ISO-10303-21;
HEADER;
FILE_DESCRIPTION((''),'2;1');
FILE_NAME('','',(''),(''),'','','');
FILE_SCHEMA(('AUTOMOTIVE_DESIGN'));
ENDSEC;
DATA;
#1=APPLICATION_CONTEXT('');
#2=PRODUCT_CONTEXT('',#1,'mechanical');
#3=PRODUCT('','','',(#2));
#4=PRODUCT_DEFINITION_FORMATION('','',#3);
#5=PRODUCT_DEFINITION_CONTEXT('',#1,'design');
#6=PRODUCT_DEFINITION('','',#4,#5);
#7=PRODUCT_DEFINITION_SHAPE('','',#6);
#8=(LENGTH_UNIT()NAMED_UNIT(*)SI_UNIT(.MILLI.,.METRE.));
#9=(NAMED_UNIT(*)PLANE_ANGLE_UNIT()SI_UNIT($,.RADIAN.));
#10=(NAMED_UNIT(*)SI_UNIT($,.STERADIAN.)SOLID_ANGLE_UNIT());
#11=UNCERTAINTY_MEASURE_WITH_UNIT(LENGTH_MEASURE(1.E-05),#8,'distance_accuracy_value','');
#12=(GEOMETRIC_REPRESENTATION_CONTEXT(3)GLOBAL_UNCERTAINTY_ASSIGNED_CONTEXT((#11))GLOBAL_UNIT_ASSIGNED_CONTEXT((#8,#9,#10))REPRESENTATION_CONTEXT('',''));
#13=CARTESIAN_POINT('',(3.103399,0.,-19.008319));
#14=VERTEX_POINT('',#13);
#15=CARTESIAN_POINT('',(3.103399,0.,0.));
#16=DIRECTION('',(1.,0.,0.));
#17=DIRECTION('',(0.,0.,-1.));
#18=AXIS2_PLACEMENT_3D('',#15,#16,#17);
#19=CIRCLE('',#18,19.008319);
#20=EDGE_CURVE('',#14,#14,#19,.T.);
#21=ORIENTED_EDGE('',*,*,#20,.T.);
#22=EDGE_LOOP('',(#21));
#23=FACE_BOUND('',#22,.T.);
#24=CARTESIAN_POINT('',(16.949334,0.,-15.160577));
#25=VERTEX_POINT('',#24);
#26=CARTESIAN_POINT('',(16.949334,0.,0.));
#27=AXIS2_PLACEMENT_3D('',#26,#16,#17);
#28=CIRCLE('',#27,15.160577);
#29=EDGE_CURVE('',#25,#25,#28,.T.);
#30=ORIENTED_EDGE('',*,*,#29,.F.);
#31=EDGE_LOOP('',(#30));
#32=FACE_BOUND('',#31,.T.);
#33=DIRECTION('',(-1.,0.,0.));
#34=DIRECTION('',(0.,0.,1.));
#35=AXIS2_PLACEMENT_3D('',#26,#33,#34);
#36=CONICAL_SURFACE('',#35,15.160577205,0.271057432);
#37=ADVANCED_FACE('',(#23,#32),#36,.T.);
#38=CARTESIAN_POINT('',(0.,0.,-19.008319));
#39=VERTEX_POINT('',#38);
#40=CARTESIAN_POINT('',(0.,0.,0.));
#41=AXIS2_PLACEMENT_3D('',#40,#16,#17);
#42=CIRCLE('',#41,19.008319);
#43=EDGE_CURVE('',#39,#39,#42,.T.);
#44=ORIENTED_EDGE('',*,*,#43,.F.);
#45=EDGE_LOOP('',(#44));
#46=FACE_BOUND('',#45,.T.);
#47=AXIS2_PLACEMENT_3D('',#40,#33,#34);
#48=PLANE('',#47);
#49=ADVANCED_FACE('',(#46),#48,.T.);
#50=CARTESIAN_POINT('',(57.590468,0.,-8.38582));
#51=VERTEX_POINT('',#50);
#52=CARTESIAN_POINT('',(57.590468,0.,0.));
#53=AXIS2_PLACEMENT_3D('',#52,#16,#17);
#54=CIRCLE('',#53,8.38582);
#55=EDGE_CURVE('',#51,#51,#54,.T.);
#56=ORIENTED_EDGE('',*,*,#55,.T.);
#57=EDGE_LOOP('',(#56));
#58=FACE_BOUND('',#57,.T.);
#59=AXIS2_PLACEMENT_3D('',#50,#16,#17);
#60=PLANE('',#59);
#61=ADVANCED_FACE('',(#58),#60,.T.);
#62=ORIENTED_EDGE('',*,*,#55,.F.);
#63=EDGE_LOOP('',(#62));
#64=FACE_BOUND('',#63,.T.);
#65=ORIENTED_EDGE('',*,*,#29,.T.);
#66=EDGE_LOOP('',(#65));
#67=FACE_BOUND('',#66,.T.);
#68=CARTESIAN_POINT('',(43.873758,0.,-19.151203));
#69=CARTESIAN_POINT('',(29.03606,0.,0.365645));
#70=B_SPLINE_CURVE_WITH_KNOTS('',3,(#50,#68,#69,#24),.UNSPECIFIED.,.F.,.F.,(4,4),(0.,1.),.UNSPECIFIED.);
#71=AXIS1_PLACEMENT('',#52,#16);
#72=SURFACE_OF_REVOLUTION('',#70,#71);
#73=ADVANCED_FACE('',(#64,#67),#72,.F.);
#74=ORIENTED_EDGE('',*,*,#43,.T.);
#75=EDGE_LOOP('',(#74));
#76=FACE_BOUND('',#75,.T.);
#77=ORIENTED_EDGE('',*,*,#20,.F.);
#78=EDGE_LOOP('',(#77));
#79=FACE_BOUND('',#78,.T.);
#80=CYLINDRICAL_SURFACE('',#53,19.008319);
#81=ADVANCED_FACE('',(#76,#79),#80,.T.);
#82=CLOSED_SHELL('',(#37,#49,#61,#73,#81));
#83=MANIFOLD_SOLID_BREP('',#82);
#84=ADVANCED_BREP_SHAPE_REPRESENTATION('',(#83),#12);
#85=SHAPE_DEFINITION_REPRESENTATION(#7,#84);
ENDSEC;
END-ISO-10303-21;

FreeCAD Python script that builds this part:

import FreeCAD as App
import Part
import Sketcher
from FreeCAD import Vector
Q = App.Units.Quantity

doc = App.newDocument("Part")
params = doc.addObject("Spreadsheet::Sheet", "Params")
for row, (alias, value) in enumerate([
    ("revolution_angle", "360 deg"),
], start=1):
    params.set(f"A{row}", alias)
    params.set(f"B{row}", "=" + value)
    params.setAlias(f"B{row}", alias)

body = doc.addObject("PartDesign::Body", "Body")

# Sketch on XZ plane
sketch1 = body.newObject("Sketcher::SketchObject", "Sketch")
sketch1.AttachmentSupport = (doc.getObject("XZ_Plane"), [""])
sketch1.MapMode = "FlatFace"
sketch1.addGeometry(Part.LineSegment(Vector(0, -19.008319, 0), Vector(0, 0, 0)), False)
sketch1.addGeometry(Part.LineSegment(Vector(0, 0, 0), Vector(57.590468, 0, 0)), False)
sketch1.addGeometry(Part.LineSegment(Vector(57.590468, 0, 0), Vector(57.590468, -8.38582, 0)), False)
sketch1.addGeometry(Part.BSplineCurve([Vector(16.949334, -15.160577, 0), Vector(29.03606, 0.365645, 0), Vector(43.873758, -19.151203, 0), Vector(57.590468, -8.38582, 0)], [4, 4], [0, 1], False, 3, [1, 1, 1, 1], False), False)
sketch1.addGeometry(Part.LineSegment(Vector(16.949334, -15.160577, 0), Vector(3.103399, -19.008319, 0)), False)
sketch1.addGeometry(Part.LineSegment(Vector(3.103399, -19.008319, 0), Vector(0, -19.008319, 0)), False)
sketch1.addConstraint(Sketcher.Constraint("Block", 3))
sketch1.addConstraint(Sketcher.Constraint("Coincident", 0, 2, 1, 1))
sketch1.addConstraint(Sketcher.Constraint("Coincident", 1, 2, 2, 1))
sketch1.addConstraint(Sketcher.Constraint("Coincident", 2, 2, 3, 2))
sketch1.addConstraint(Sketcher.Constraint("Coincident", 3, 1, 4, 1))
sketch1.addConstraint(Sketcher.Constraint("Coincident", 4, 2, 5, 1))
sketch1.addConstraint(Sketcher.Constraint("Coincident", 5, 2, 0, 1))
sketch1.addConstraint(Sketcher.Constraint("Vertical", 0))
sketch1.addConstraint(Sketcher.Constraint("Horizontal", 1))
sketch1.addConstraint(Sketcher.Constraint("Vertical", 2))
sketch1.addConstraint(Sketcher.Constraint("Horizontal", 5))
sketch1.addConstraint(Sketcher.Constraint("Coincident", 0, 2, -1, 1))
sketch1.addConstraint(Sketcher.Constraint("DistanceX", 5, 2, 5, 1, Q("3.103399 mm")))
sketch1.addConstraint(Sketcher.Constraint("DistanceY", 0, 1, 0, 2, Q("19.008319 mm")))
revolution = body.newObject("PartDesign::Revolution", "Revolution")
revolution.Profile = sketch1
revolution.ReferenceAxis = (sketch1, ["H_Axis"])
revolution.setExpression("Angle", "Params.revolution_angle")

doc.recompute()
